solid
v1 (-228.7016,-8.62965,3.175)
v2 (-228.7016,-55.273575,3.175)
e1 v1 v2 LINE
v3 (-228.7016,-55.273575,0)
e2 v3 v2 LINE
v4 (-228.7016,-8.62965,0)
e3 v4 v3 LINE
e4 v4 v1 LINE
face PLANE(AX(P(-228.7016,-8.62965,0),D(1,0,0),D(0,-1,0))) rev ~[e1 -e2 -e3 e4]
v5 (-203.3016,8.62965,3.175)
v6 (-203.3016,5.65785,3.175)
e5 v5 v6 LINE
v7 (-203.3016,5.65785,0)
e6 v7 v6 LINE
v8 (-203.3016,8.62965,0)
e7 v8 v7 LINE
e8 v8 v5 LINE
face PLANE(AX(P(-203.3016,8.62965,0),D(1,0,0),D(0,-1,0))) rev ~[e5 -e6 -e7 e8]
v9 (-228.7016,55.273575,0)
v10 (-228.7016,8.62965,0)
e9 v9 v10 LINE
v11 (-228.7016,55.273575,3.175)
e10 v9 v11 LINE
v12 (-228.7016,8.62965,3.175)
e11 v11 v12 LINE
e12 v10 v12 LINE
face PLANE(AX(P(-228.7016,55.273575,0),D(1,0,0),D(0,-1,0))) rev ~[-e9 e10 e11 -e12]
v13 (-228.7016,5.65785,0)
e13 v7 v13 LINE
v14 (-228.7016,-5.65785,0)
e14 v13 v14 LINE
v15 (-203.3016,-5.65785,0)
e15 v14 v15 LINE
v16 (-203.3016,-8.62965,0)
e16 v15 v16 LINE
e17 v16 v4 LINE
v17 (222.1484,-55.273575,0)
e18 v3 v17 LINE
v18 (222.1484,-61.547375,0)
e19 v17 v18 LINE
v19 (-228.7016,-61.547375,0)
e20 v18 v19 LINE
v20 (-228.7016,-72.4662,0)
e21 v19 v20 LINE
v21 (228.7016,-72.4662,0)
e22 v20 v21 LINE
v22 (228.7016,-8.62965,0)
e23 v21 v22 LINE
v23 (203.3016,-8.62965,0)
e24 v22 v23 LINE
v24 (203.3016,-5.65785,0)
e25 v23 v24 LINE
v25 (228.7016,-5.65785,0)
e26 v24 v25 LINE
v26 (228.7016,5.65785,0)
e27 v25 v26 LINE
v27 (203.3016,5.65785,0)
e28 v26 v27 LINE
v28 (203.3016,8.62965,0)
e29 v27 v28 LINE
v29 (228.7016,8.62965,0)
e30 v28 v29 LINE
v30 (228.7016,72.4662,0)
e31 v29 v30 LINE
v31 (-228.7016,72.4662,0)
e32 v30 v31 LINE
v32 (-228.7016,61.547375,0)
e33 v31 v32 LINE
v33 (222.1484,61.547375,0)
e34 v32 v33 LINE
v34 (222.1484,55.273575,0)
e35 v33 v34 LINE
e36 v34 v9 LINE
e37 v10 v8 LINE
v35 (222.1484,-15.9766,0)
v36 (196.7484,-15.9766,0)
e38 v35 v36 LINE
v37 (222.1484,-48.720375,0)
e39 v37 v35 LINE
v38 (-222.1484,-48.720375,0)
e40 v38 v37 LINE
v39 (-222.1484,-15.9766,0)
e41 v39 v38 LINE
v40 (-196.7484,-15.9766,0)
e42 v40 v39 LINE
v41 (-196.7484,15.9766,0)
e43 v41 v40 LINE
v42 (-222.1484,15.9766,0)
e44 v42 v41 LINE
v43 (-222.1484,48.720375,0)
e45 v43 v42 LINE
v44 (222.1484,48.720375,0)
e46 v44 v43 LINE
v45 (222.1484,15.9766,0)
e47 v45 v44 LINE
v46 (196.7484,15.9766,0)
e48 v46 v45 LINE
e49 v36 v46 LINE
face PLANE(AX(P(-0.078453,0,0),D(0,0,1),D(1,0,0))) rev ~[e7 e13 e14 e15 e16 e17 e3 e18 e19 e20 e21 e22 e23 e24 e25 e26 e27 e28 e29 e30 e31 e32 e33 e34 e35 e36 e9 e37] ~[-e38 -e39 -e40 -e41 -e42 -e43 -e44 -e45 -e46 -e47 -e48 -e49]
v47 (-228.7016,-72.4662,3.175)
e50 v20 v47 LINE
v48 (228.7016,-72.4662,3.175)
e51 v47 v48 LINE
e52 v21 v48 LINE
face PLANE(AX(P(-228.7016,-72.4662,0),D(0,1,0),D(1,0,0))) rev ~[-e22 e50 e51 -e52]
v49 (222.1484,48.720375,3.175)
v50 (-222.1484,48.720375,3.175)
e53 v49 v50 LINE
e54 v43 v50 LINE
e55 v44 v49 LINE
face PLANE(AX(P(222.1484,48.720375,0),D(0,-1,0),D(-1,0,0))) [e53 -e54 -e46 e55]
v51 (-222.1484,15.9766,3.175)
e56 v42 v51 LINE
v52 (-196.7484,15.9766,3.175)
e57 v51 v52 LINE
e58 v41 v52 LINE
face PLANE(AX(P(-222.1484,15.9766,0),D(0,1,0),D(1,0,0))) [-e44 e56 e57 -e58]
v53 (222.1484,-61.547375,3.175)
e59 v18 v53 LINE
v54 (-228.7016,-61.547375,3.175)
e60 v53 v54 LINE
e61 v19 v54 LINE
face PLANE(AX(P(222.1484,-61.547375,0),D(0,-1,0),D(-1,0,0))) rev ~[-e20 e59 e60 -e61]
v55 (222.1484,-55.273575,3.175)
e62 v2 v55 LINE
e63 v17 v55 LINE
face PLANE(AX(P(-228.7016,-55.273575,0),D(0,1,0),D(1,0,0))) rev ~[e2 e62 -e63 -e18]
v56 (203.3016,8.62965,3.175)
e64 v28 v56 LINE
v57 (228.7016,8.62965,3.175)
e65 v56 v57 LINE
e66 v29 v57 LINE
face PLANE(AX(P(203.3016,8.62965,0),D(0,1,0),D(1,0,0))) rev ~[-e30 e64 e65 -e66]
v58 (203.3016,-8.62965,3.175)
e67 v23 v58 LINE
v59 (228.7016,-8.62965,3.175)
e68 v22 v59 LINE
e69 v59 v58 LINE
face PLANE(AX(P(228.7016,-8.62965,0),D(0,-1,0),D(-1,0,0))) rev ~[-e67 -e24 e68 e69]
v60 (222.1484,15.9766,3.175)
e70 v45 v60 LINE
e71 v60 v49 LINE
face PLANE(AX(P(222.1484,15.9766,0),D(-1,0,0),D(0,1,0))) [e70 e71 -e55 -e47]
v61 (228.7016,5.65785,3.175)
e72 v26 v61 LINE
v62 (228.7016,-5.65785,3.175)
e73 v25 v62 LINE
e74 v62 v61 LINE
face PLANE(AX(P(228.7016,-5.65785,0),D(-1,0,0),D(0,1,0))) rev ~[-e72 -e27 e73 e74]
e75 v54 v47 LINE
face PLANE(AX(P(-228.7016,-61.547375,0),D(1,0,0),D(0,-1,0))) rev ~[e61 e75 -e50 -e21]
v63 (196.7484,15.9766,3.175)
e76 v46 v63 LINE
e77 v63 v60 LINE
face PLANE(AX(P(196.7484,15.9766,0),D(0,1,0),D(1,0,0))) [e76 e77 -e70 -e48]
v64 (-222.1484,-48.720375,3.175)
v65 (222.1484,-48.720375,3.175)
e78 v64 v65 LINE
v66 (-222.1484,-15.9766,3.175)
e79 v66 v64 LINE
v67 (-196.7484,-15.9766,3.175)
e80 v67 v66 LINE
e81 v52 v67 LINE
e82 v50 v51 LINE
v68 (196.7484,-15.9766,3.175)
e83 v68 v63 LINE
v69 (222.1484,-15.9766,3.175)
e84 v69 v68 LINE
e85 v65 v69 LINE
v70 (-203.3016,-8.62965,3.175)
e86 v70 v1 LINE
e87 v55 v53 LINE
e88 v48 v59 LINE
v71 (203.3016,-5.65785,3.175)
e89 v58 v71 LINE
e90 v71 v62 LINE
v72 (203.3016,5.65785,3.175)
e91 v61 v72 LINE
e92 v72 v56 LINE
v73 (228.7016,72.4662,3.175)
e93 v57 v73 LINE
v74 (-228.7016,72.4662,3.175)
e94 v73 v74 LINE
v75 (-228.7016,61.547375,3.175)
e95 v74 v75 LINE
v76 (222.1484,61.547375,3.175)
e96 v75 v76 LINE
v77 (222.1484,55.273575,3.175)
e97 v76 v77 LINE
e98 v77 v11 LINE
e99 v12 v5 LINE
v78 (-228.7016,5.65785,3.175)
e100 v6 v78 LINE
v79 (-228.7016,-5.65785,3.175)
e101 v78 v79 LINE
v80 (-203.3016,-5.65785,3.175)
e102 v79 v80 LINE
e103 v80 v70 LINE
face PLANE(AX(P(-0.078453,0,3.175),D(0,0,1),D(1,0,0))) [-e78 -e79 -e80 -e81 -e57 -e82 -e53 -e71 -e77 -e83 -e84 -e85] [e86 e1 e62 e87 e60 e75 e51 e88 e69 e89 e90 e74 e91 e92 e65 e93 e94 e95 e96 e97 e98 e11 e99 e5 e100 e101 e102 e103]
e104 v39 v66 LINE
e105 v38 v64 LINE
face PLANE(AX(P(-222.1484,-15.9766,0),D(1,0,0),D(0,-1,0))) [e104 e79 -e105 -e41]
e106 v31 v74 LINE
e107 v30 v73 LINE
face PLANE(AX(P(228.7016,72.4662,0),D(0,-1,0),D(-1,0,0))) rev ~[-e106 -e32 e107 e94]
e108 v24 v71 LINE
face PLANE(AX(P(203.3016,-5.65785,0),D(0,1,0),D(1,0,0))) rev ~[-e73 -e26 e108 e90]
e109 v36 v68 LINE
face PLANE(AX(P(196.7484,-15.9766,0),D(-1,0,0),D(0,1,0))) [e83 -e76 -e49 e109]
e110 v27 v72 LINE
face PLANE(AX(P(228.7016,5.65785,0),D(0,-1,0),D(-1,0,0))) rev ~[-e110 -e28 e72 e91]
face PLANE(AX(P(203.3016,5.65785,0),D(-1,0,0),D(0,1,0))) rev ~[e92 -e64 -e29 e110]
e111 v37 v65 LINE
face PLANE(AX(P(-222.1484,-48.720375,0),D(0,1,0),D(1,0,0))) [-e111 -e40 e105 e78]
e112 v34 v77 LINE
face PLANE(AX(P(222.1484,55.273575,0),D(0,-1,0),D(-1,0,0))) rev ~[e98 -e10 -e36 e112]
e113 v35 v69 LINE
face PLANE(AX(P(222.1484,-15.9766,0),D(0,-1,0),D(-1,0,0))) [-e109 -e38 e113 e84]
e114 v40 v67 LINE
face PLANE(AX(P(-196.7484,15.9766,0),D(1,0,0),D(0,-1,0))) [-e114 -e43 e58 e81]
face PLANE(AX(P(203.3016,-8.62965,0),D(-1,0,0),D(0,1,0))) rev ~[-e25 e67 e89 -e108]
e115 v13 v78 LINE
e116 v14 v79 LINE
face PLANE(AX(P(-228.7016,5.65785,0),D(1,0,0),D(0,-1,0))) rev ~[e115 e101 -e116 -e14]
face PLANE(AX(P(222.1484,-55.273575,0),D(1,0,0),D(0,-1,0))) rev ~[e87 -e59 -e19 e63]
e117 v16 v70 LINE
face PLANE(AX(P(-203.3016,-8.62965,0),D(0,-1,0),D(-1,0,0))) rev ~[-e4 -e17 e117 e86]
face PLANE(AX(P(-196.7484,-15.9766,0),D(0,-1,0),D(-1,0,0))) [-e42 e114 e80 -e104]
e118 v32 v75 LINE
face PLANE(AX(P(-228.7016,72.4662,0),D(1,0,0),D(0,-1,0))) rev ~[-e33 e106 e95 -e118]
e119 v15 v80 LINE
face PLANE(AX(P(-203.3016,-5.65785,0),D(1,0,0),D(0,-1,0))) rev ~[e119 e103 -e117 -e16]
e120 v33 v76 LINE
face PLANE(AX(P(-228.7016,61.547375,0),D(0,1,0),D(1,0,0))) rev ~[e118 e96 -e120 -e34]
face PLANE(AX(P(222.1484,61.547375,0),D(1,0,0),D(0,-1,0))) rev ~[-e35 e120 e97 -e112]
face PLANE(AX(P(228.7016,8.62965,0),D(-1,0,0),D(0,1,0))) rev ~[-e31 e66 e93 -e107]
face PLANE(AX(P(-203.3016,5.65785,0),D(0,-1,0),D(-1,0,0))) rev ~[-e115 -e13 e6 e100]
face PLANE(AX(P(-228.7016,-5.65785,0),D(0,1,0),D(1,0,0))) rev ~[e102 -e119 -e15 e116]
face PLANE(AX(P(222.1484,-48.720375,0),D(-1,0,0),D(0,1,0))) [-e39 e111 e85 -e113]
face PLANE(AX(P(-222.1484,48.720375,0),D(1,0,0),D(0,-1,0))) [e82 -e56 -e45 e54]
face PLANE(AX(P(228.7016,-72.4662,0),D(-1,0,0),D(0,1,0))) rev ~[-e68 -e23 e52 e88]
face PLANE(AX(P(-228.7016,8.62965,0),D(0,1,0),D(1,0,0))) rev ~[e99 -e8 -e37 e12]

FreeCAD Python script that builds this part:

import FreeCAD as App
import Part
import Sketcher

V = App.Vector
Q = App.Units.Quantity


def add_polygon(sketch, points):
    """Adds a closed chain of lines whose ends are joined by coincident constraints."""
    first, n = sketch.GeometryCount, len(points)
    for a, b in zip(points, points[1:] + points[:1]):
        sketch.addGeometry(Part.LineSegment(App.Vector(*a, 0), App.Vector(*b, 0)), False)
    for i in range(n):
        sketch.addConstraint(Sketcher.Constraint("Coincident", first + i, 2, first + (i + 1) % n, 1))

doc = App.newDocument("Part")
params = doc.addObject("Spreadsheet::Sheet", "Params")
for row, (alias, value) in enumerate([
    ("sketch1_width", "1 in"),
    ("sketch1_width2", "17.75 in"),
    ("sketch1_width3", "18.008 in"),
    ("sketch1_height", "0.117 in"),
    ("sketch1_height2", "0.247 in"),
    ("pad1_length", "0.125 in"),
], start=1):
    params.set(f"A{row}", alias)
    params.set(f"B{row}", "=" + value)
    params.setAlias(f"B{row}", alias)

body = doc.addObject("PartDesign::Body", "Body")

# Sketch on XY plane
sketch1 = doc.addObject("Sketcher::SketchObject", "Sketch")
body.addObject(sketch1)
sketch1.AttachmentSupport = (doc.XY_Plane, [""])
sketch1.MapMode = "FlatFace"
add_polygon(sketch1, [(-228.7, 8.6), (-203.3, 8.6), (-203.3, 5.7), (-228.7, 5.7), (-228.7, -5.7), (-203.3, -5.7), (-203.3, -8.6), (-228.7, -8.6), (-228.7, -55.3), (222.1, -55.3), (222.1, -61.5), (-228.7, -61.5), (-228.7, -72.5), (228.7, -72.5), (228.7, -8.6), (203.3, -8.6), (203.3, -5.7), (228.7, -5.7), (228.7, 5.7), (203.3, 5.7), (203.3, 8.6), (228.7, 8.6), (228.7, 72.5), (-228.7, 72.5), (-228.7, 61.5), (222.1, 61.5), (222.1, 55.3), (-228.7, 55.3)])  # lines 0-27
add_polygon(sketch1, [(222.1, -16), (222.1, -48.7), (-222.1, -48.7), (-222.1, -16), (-196.7, -16), (-196.7, 16), (-222.1, 16), (-222.1, 48.7), (222.1, 48.7), (222.1, 16), (196.7, 16), (196.7, -16)])  # lines 28-39
sketch1.addConstraint(Sketcher.Constraint("Horizontal", 0))
sketch1.addConstraint(Sketcher.Constraint("Vertical", 1))
sketch1.addConstraint(Sketcher.Constraint("Horizontal", 2))
sketch1.addConstraint(Sketcher.Constraint("Vertical", 3))
sketch1.addConstraint(Sketcher.Constraint("Horizontal", 4))
sketch1.addConstraint(Sketcher.Constraint("Vertical", 5))
sketch1.addConstraint(Sketcher.Constraint("Horizontal", 6))
sketch1.addConstraint(Sketcher.Constraint("Vertical", 7))
sketch1.addConstraint(Sketcher.Constraint("Horizontal", 8))
sketch1.addConstraint(Sketcher.Constraint("Vertical", 9))
sketch1.addConstraint(Sketcher.Constraint("Horizontal", 10))
sketch1.addConstraint(Sketcher.Constraint("Vertical", 11))
sketch1.addConstraint(Sketcher.Constraint("Horizontal", 12))
sketch1.addConstraint(Sketcher.Constraint("Vertical", 13))
sketch1.addConstraint(Sketcher.Constraint("Horizontal", 14))
sketch1.addConstraint(Sketcher.Constraint("Vertical", 15))
sketch1.addConstraint(Sketcher.Constraint("Horizontal", 16))
sketch1.addConstraint(Sketcher.Constraint("Vertical", 17))
sketch1.addConstraint(Sketcher.Constraint("Horizontal", 18))
sketch1.addConstraint(Sketcher.Constraint("Vertical", 19))
sketch1.addConstraint(Sketcher.Constraint("Horizontal", 20))
sketch1.addConstraint(Sketcher.Constraint("Vertical", 21))
sketch1.addConstraint(Sketcher.Constraint("Horizontal", 22))
sketch1.addConstraint(Sketcher.Constraint("Vertical", 23))
sketch1.addConstraint(Sketcher.Constraint("Horizontal", 24))
sketch1.addConstraint(Sketcher.Constraint("Vertical", 25))
sketch1.addConstraint(Sketcher.Constraint("Horizontal", 26))
sketch1.addConstraint(Sketcher.Constraint("Vertical", 27))
sketch1.addConstraint(Sketcher.Constraint("Vertical", 28))
sketch1.addConstraint(Sketcher.Constraint("Horizontal", 29))
sketch1.addConstraint(Sketcher.Constraint("Vertical", 30))
sketch1.addConstraint(Sketcher.Constraint("Horizontal", 31))
sketch1.addConstraint(Sketcher.Constraint("Vertical", 32))
sketch1.addConstraint(Sketcher.Constraint("Horizontal", 33))
sketch1.addConstraint(Sketcher.Constraint("Vertical", 34))
sketch1.addConstraint(Sketcher.Constraint("Horizontal", 35))
sketch1.addConstraint(Sketcher.Constraint("Vertical", 36))
sketch1.addConstraint(Sketcher.Constraint("Horizontal", 37))
sketch1.addConstraint(Sketcher.Constraint("Vertical", 38))
sketch1.addConstraint(Sketcher.Constraint("Horizontal", 39))
sketch1.addConstraint(Sketcher.Constraint("Symmetric", 0, 2, 14, 2, -1, 1))
sketch1.addConstraint(Sketcher.Constraint("Symmetric", 2, 2, 16, 2, -1, 1))
sketch1.addConstraint(Sketcher.Constraint("Symmetric", 4, 2, 18, 2, -1, 1))
sketch1.addConstraint(Sketcher.Constraint("Symmetric", 6, 2, 20, 2, -1, 1))
sketch1.addConstraint(Sketcher.Constraint("Symmetric", 11, 2, 21, 2, -1, 1))
sketch1.addConstraint(Sketcher.Constraint("Symmetric", 28, 2, 34, 2, -1, 1))
sketch1.addConstraint(Sketcher.Constraint("Symmetric", 30, 2, 36, 2, -1, 1))
sketch1.addConstraint(Sketcher.Constraint("Symmetric", 32, 2, 38, 2, -1, 1))
sketch1.addConstraint(Sketcher.Constraint("Symmetric", 6, 2, 13, 2, -2))
sketch1.addConstraint(Sketcher.Constraint("Symmetric", 4, 2, 15, 2, -2))
sketch1.addConstraint(Sketcher.Constraint("Symmetric", 33, 2, 36, 2, -2))
sketch1.addConstraint(Sketcher.Constraint("Symmetric", 10, 2, 23, 2, -1))
sketch1.addConstraint(Sketcher.Constraint("Symmetric", 8, 2, 25, 2, -1))
sketch1.addConstraint(Sketcher.Constraint("Vertical", 3, 2, 6, 2))
sketch1.addConstraint(Sketcher.Constraint("Vertical", 23, 2, 26, 2))
sketch1.addConstraint(Sketcher.Constraint("Vertical", 25, 2, 28, 2))
sketch1.addConstraint(Sketcher.Constraint("Equal", 20, 31))
sketch1.addConstraint(Sketcher.Constraint("DistanceX", 0, 1, 0, 2, Q("1 in")))
sketch1.addConstraint(Sketcher.Constraint("DistanceX", 8, 1, 8, 2, Q("17.75 in")))
sketch1.addConstraint(Sketcher.Constraint("DistanceX", 12, 1, 12, 2, Q("18.008 in")))
sketch1.addConstraint(Sketcher.Constraint("DistanceY", 1, 2, 1, 1, Q("0.117 in")))
sketch1.addConstraint(Sketcher.Constraint("DistanceY", 9, 2, 9, 1, Q("0.247 in")))
sketch1.addConstraint(Sketcher.Constraint("DistanceY", 32, 1, 32, 2, Q("1.258 in")))
sketch1.addConstraint(Sketcher.Constraint("DistanceY", 3, 2, 3, 1, Q("0.4455 in")))
sketch1.addConstraint(Sketcher.Constraint("DistanceY", 11, 2, -1, 1, Q("2.853 in")))
sketch1.addConstraint(Sketcher.Constraint("DistanceY", 8, 2, 28, 2, Q("0.258 in")))
sketch1.addConstraint(Sketcher.Constraint("DistanceY", 7, 2, 7, 1, Q("46.643925 mm")))
sketch1.setExpression("Constraints[97]", "Params.sketch1_width")
sketch1.setExpression("Constraints[98]", "Params.sketch1_width2")
sketch1.setExpression("Constraints[99]", "Params.sketch1_width3")
sketch1.setExpression("Constraints[100]", "Params.sketch1_height")
sketch1.setExpression("Constraints[101]", "Params.sketch1_height2")
pad1 = doc.addObject("PartDesign::Pad", "Pad")
body.addObject(pad1)
pad1.Profile = sketch1
pad1.setExpression("Length", "Params.pad1_length")

doc.recompute()
